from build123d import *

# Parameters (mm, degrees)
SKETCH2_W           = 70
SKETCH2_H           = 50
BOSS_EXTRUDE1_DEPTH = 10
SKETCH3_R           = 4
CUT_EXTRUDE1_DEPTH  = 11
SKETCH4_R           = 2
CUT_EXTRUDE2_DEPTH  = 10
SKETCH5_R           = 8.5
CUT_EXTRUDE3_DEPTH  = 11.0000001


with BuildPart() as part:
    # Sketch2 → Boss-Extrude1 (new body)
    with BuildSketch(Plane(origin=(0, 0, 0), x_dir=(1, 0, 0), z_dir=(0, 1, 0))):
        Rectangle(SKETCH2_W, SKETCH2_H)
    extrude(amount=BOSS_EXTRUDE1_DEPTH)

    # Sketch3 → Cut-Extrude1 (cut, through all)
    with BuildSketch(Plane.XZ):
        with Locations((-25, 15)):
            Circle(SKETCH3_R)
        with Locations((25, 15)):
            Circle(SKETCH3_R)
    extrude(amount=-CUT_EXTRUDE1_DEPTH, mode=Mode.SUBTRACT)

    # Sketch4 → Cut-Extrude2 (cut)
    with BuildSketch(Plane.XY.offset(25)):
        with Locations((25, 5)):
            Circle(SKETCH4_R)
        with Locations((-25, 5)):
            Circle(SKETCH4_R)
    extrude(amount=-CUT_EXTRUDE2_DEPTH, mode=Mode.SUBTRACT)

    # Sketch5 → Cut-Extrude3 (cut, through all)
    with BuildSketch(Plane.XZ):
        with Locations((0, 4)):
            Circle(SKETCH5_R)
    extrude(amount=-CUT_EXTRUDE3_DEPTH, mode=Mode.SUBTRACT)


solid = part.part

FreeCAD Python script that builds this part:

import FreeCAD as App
import Part
import Sketcher

V = App.Vector
Q = App.Units.Quantity

doc = App.newDocument("Part")
body = doc.addObject("PartDesign::Body", "Body")

# Sketch on XZ plane
sketch1 = body.newObject("Sketcher::SketchObject", "Sketch")
sketch1.AttachmentSupport = (doc.getObject("XZ_Plane"), [""])
sketch1.MapMode = "FlatFace"
sketch1.addGeometry([
    Part.LineSegment(V(-35, -25, 0), V(-35, 25, 0)),
    Part.LineSegment(V(-35, 25, 0), V(35, 25, 0)),
    Part.LineSegment(V(35, 25, 0), V(35, -25, 0)),
    Part.LineSegment(V(35, -25, 0), V(-35, -25, 0)),
], False)
sketch1.addConstraint([
    Sketcher.Constraint("Coincident", 0, 2, 1, 1),
    Sketcher.Constraint("Coincident", 1, 2, 2, 1),
    Sketcher.Constraint("Coincident", 2, 2, 3, 1),
    Sketcher.Constraint("Coincident", 3, 2, 0, 1),
    Sketcher.Constraint("Vertical", 0),
    Sketcher.Constraint("Horizontal", 1),
    Sketcher.Constraint("Vertical", 2),
    Sketcher.Constraint("Horizontal", 3),
    Sketcher.Constraint("Symmetric", 0, 2, 2, 2, -1, 1),
    Sketcher.Constraint("DistanceX", 1, 1, 1, 2, Q("70 mm")),
    Sketcher.Constraint("DistanceY", 0, 1, 0, 2, Q("50 mm")),
])
pad1 = body.newObject("PartDesign::Pad", "Pad")
pad1.Profile = sketch1
pad1.Length = 10
pad1.Reversed = True

# Sketch on XZ plane
sketch2 = body.newObject("Sketcher::SketchObject", "Sketch001")
sketch2.AttachmentSupport = (doc.getObject("XZ_Plane"), [""])
sketch2.MapMode = "FlatFace"
sketch2.addGeometry([
    Part.Circle(V(-25, 15, 0), V(0, 0, 1), 4),
    Part.Circle(V(25, 15, 0), V(0, 0, 1), 4),
], False)
sketch2.addConstraint([
    Sketcher.Constraint("Equal", 0, 1),
    Sketcher.Constraint("Symmetric", 0, 3, 1, 3, -2),
    Sketcher.Constraint("Diameter", 0, Q("8 mm")),
    Sketcher.Constraint("DistanceX", 0, 3, -1, 1, Q("25 mm")),
    Sketcher.Constraint("DistanceY", -1, 1, 0, 3, Q("15 mm")),
])
pocket1 = body.newObject("PartDesign::Pocket", "Pocket")
pocket1.Profile = sketch2
pocket1.Type = "ThroughAll"

# Sketch on XY plane
sketch3 = body.newObject("Sketcher::SketchObject", "Sketch002")
sketch3.AttachmentSupport = (doc.getObject("XY_Plane"), [""])
sketch3.MapMode = "FlatFace"
sketch3.AttachmentOffset = App.Placement(V(0, 0, 25), App.Rotation())
sketch3.addGeometry([
    Part.Circle(V(25, 5, 0), V(0, 0, 1), 2),
    Part.Circle(V(-25, 5, 0), V(0, 0, 1), 2),
], False)
sketch3.addConstraint([
    Sketcher.Constraint("Equal", 0, 1),
    Sketcher.Constraint("Symmetric", 0, 3, 1, 3, -2),
    Sketcher.Constraint("Diameter", 0, Q("4 mm")),
    Sketcher.Constraint("DistanceX", -1, 1, 0, 3, Q("25 mm")),
    Sketcher.Constraint("DistanceY", -1, 1, 0, 3, Q("5 mm")),
])
pocket2 = body.newObject("PartDesign::Pocket", "Pocket001")
pocket2.Profile = sketch3
pocket2.Length = 10

# Sketch on XZ plane
sketch4 = body.newObject("Sketcher::SketchObject", "Sketch003")
sketch4.AttachmentSupport = (doc.getObject("XZ_Plane"), [""])
sketch4.MapMode = "FlatFace"
sketch4.addGeometry(Part.Circle(V(0, 4, 0), V(0, 0, 1), 8), False)
sketch4.addConstraint([
    Sketcher.Constraint("PointOnObject", 0, 3, -2),
    Sketcher.Constraint("Diameter", 0, Q("17 mm")),
    Sketcher.Constraint("DistanceY", -1, 1, 0, 3, Q("4 mm")),
])
pocket3 = body.newObject("PartDesign::Pocket", "Pocket002")
pocket3.Profile = sketch4
pocket3.Type = "ThroughAll"

doc.recompute()
